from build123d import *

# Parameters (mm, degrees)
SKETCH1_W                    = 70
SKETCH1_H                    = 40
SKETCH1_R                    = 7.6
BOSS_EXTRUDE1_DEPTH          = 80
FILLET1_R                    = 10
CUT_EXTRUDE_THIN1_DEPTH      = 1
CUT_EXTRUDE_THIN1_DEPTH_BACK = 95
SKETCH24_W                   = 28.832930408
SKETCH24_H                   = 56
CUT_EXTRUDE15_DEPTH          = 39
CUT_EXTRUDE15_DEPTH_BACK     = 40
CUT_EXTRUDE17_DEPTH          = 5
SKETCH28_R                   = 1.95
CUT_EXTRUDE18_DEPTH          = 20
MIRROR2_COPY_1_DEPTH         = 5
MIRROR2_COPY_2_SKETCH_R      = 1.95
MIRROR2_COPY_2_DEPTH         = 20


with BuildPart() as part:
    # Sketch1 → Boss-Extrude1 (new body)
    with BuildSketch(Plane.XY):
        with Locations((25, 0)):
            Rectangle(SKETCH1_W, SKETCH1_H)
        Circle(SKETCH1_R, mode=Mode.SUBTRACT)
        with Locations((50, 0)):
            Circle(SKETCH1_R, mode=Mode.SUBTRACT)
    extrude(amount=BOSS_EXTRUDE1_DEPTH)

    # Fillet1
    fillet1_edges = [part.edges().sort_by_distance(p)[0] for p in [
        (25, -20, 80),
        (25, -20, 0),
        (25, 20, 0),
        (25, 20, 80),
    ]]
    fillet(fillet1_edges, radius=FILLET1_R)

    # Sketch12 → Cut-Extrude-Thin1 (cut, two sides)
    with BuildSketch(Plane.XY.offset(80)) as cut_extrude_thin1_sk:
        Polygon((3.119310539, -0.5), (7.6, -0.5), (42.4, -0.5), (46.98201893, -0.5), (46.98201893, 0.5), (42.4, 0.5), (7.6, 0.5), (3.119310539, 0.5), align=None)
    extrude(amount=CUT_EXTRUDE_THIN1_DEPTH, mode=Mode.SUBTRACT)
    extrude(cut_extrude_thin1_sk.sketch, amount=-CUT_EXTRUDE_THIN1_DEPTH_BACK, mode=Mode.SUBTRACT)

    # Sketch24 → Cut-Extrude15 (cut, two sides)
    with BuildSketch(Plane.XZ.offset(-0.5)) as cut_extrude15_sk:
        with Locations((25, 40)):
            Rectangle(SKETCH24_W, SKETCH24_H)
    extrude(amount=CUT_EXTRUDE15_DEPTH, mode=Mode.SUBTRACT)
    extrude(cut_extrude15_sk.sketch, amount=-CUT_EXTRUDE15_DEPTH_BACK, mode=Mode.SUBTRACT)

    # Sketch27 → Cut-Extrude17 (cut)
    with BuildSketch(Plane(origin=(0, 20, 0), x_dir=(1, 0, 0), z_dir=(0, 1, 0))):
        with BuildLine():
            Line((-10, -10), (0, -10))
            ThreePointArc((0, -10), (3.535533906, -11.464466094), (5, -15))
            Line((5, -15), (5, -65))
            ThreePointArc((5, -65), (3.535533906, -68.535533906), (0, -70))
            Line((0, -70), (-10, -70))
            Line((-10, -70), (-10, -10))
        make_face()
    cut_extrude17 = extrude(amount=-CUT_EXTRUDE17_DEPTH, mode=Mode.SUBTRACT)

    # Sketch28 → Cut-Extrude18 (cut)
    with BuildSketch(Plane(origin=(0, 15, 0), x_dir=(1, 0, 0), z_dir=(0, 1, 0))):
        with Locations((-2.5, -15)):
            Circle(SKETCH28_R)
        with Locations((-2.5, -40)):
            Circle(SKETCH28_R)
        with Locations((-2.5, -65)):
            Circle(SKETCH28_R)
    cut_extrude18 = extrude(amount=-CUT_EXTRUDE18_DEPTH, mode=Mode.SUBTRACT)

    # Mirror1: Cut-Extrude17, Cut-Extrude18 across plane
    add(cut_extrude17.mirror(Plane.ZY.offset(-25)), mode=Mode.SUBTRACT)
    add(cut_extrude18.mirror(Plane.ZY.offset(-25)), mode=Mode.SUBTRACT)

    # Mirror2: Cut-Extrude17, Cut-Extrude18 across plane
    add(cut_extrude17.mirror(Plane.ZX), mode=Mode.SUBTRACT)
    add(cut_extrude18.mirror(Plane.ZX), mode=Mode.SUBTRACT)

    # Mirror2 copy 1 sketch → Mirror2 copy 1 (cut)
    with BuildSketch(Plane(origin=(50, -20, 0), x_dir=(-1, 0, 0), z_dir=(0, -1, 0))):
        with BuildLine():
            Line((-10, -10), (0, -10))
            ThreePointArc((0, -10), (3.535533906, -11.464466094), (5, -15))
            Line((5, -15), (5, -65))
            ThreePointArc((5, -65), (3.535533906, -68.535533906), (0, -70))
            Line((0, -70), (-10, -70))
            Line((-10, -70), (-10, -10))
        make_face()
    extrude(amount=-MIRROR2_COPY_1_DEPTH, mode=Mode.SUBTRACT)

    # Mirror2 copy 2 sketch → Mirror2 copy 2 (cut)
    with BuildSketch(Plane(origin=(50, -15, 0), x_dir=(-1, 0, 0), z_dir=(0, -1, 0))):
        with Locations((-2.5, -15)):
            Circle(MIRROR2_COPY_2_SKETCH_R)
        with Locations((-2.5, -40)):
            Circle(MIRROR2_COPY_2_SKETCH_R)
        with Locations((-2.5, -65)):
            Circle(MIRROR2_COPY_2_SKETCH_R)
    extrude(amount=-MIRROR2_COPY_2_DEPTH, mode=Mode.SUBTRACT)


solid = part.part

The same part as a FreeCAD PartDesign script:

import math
import FreeCAD as App
import Part
import Sketcher
Q = App.Units.Quantity


def edges_at(feature, points):
    """Names of the edges that pass closest to the given points."""
    edges = feature.Shape.Edges
    near = lambda p: min(range(len(edges)), key=lambda i: edges[i].distToShape(Part.Vertex(*p))[0])
    return sorted({f"Edge{near(p) + 1}" for p in points})


def add_polygon(sketch, points):
    """Adds a closed chain of lines whose ends are joined by coincident constraints."""
    first, n = sketch.GeometryCount, len(points)
    for a, b in zip(points, points[1:] + points[:1]):
        sketch.addGeometry(Part.LineSegment(App.Vector(*a, 0), App.Vector(*b, 0)), False)
    for i in range(n):
        sketch.addConstraint(Sketcher.Constraint("Coincident", first + i, 2, first + (i + 1) % n, 1))

doc = App.newDocument("Part")
params = doc.addObject("Spreadsheet::Sheet", "Params")
for row, (alias, value) in enumerate([
    ("sketch1_diameter", "15.2 mm"),
    ("sketch1_width", "70 mm"),
    ("sketch1_height", "40 mm"),
    ("pad1_length", "80 mm"),
    ("fillet_radius", "10 mm"),
    ("sketch2_height", "1 mm"),
    ("sketch3_height", "56 mm"),
    ("sketch4_radius", "5 mm"),
    ("sketch4_width", "10 mm"),
    ("sketch4_height", "60 mm"),
    ("pocket3_length", "5 mm"),
    ("sketch5_diameter", "3.9 mm"),
    ("pocket4_length", "20 mm"),
    ("sketch6_radius", "5 mm"),
    ("sketch6_width", "10 mm"),
    ("sketch6_height", "60 mm"),
    ("pocket5_length", "5 mm"),
    ("sketch7_diameter", "3.9 mm"),
    ("pocket6_length", "20 mm"),
], start=1):
    params.set(f"A{row}", alias)
    params.set(f"B{row}", "=" + value)
    params.setAlias(f"B{row}", alias)

body = doc.addObject("PartDesign::Body", "Body")

# Sketch on XY plane
sketch1 = body.newObject("Sketcher::SketchObject", "Sketch")
sketch1.AttachmentSupport = (doc.getObject("XY_Plane"), [""])
sketch1.MapMode = "FlatFace"
add_polygon(sketch1, [(-10, 20), (-10, -20), (60, -20), (60, 20)])  # lines 0-3
sketch1.addGeometry(Part.Circle(App.Vector(0, 0, 0), App.Vector(0, 0, 1), 8), False)  # 4
sketch1.addGeometry(Part.Circle(App.Vector(50, 0, 0), App.Vector(0, 0, 1), 8), False)  # 5
sketch1.addConstraint([
    Sketcher.Constraint("Vertical", 0),
    Sketcher.Constraint("Horizontal", 1),
    Sketcher.Constraint("Vertical", 2),
    Sketcher.Constraint("Horizontal", 3),
    Sketcher.Constraint("Coincident", 4, 3, -1, 1),
    Sketcher.Constraint("Equal", 4, 5),
    Sketcher.Constraint("PointOnObject", 5, 3, -1),
    Sketcher.Constraint("Diameter", 4, Q("15.2 mm")),
    Sketcher.Constraint("DistanceX", 1, 1, 1, 2, Q("70 mm")),
    Sketcher.Constraint("DistanceY", 0, 2, 0, 1, Q("40 mm")),
    Sketcher.Constraint("DistanceX", -1, 1, 5, 3, Q("50 mm")),
    Sketcher.Constraint("DistanceX", 0, 2, -1, 1, Q("10 mm")),
    Sketcher.Constraint("DistanceY", 0, 2, -1, 1, Q("20 mm")),
])
sketch1.setExpression("Constraints[11]", "Params.sketch1_diameter")
sketch1.setExpression("Constraints[12]", "Params.sketch1_width")
sketch1.setExpression("Constraints[13]", "Params.sketch1_height")
pad1 = body.newObject("PartDesign::Pad", "Pad")
pad1.Profile = sketch1
pad1.setExpression("Length", "Params.pad1_length")
doc.recompute()

fillet = body.newObject("PartDesign::Fillet", "Fillet")
fillet.Base = (pad1, edges_at(pad1, [
    (25, -20, 80),
    (25, -20, 0),
    (25, 20, 0),
    (25, 20, 80),
]))
fillet.setExpression("Radius", "Params.fillet_radius")

# Sketch on XY plane
sketch2 = body.newObject("Sketcher::SketchObject", "Sketch001")
sketch2.AttachmentSupport = (doc.getObject("XY_Plane"), [""])
sketch2.MapMode = "FlatFace"
sketch2.AttachmentOffset = App.Placement(App.Vector(0, 0, 80), App.Rotation())
add_polygon(sketch2, [(3.1, -0.5), (47, -0.5), (47, 0.5), (3.1, 0.5)])  # lines 0-3
sketch2.addConstraint([
    Sketcher.Constraint("Horizontal", 0),
    Sketcher.Constraint("Vertical", 1),
    Sketcher.Constraint("Horizontal", 2),
    Sketcher.Constraint("Vertical", 3),
    Sketcher.Constraint("DistanceY", 1, 1, 1, 2, Q("1 mm")),
    Sketcher.Constraint("DistanceY", 0, 2, -1, 1, Q("0.5 mm")),
    Sketcher.Constraint("DistanceX", 0, 1, 0, 2, Q("43.862708 mm")),
    Sketcher.Constraint("DistanceX", -1, 1, 0, 2, Q("46.982019 mm")),
])
sketch2.setExpression("Constraints[8]", "Params.sketch2_height")
pocket1 = body.newObject("PartDesign::Pocket", "Pocket")
pocket1.Profile = sketch2
pocket1.Type = "ThroughAll"
pocket1.Midplane = True

# Sketch on XZ plane
sketch3 = body.newObject("Sketcher::SketchObject", "Sketch002")
sketch3.AttachmentSupport = (doc.getObject("XZ_Plane"), [""])
sketch3.MapMode = "FlatFace"
sketch3.AttachmentOffset = App.Placement(App.Vector(0, 0, -0.5), App.Rotation())
add_polygon(sketch3, [(11, 68), (11, 12), (39, 12), (39, 68)])  # lines 0-3
sketch3.addConstraint([
    Sketcher.Constraint("Vertical", 0),
    Sketcher.Constraint("Horizontal", 1),
    Sketcher.Constraint("Vertical", 2),
    Sketcher.Constraint("Horizontal", 3),
    Sketcher.Constraint("DistanceY", 0, 2, 0, 1, Q("56 mm")),
    Sketcher.Constraint("DistanceY", -1, 1, 0, 2, Q("12 mm")),
    Sketcher.Constraint("DistanceX", 1, 1, 1, 2, Q("28.83293 mm")),
    Sketcher.Constraint("DistanceX", -1, 1, 0, 2, Q("10.583535 mm")),
])
sketch3.setExpression("Constraints[8]", "Params.sketch3_height")
pocket2 = body.newObject("PartDesign::Pocket", "Pocket001")
pocket2.Profile = sketch3
pocket2.Type = "ThroughAll"
pocket2.Midplane = True

# Sketch on XZ plane
sketch4 = body.newObject("Sketcher::SketchObject", "Sketch003")
sketch4.AttachmentSupport = (doc.getObject("XZ_Plane"), [""])
sketch4.MapMode = "FlatFace"
sketch4.AttachmentOffset = App.Placement(App.Vector(0, 0, -20), App.Rotation())
sketch4.addGeometry([
    Part.LineSegment(App.Vector(0, 10, 0), App.Vector(-10, 10, 0)),  # 0
    Part.LineSegment(App.Vector(-10, 10, 0), App.Vector(-10, 70, 0)),  # 1
    Part.LineSegment(App.Vector(-10, 70, 0), App.Vector(0, 70, 0)),  # 2
    Part.ArcOfCircle(Part.Circle(App.Vector(0, 65, 0), App.Vector(0, 0, 1), 5), math.radians(0), math.radians(90)),  # 3
    Part.LineSegment(App.Vector(5, 65, 0), App.Vector(5, 15, 0)),  # 4
    Part.ArcOfCircle(Part.Circle(App.Vector(0, 15, 0), App.Vector(0, 0, 1), 5), math.radians(-90), math.radians(0)),  # 5
], False)
sketch4.addConstraint([
    Sketcher.Constraint("Coincident", 0, 2, 1, 1),
    Sketcher.Constraint("Coincident", 1, 2, 2, 1),
    Sketcher.Constraint("Tangent", 2, 2, 3, 2),
    Sketcher.Constraint("Tangent", 3, 1, 4, 1),
    Sketcher.Constraint("Tangent", 4, 2, 5, 2),
    Sketcher.Constraint("Tangent", 5, 1, 0, 1),
    Sketcher.Constraint("Horizontal", 0),
    Sketcher.Constraint("Vertical", 1),
    Sketcher.Constraint("Horizontal", 2),
    Sketcher.Constraint("Vertical", 4),
    Sketcher.Constraint("Equal", 3, 5),
    Sketcher.Constraint("PointOnObject", 3, 3, -2),
    Sketcher.Constraint("Radius", 3, Q("5 mm")),
    Sketcher.Constraint("DistanceX", 0, 2, 0, 1, Q("10 mm")),
    Sketcher.Constraint("DistanceY", 1, 1, 1, 2, Q("60 mm")),
    Sketcher.Constraint("DistanceY", -1, 1, 3, 3, Q("65 mm")),
])
sketch4.setExpression("Constraints[12]", "Params.sketch4_radius")
sketch4.setExpression("Constraints[13]", "Params.sketch4_width")
sketch4.setExpression("Constraints[14]", "Params.sketch4_height")
pocket3 = body.newObject("PartDesign::Pocket", "Pocket002")
pocket3.Profile = sketch4
pocket3.setExpression("Length", "Params.pocket3_length")
pocket3.Reversed = True

# Sketch on XZ plane
sketch5 = body.newObject("Sketcher::SketchObject", "Sketch004")
sketch5.AttachmentSupport = (doc.getObject("XZ_Plane"), [""])
sketch5.MapMode = "FlatFace"
sketch5.AttachmentOffset = App.Placement(App.Vector(0, 0, -15), App.Rotation())
sketch5.addGeometry([
    Part.Circle(App.Vector(-2.5, 15, 0), App.Vector(0, 0, 1), 1.9),
    Part.Circle(App.Vector(-2.5, 40, 0), App.Vector(0, 0, 1), 1.9),
    Part.Circle(App.Vector(-2.5, 65, 0), App.Vector(0, 0, 1), 1.9),
], False)
sketch5.addConstraint([
    Sketcher.Constraint("Equal", 0, 1),
    Sketcher.Constraint("Equal", 1, 2),
    Sketcher.Constraint("Vertical", 0, 3, 1, 3),
    Sketcher.Constraint("Vertical", 1, 3, 2, 3),
    Sketcher.Constraint("Diameter", 0, Q("3.9 mm")),
    Sketcher.Constraint("DistanceY", -1, 1, 0, 3, Q("15 mm")),
    Sketcher.Constraint("DistanceY", -1, 1, 1, 3, Q("40 mm")),
    Sketcher.Constraint("DistanceY", -1, 1, 2, 3, Q("65 mm")),
    Sketcher.Constraint("DistanceX", 0, 3, -1, 1, Q("2.5 mm")),
])
sketch5.setExpression("Constraints[4]", "Params.sketch5_diameter")
pocket4 = body.newObject("PartDesign::Pocket", "Pocket003")
pocket4.Profile = sketch5
pocket4.setExpression("Length", "Params.pocket4_length")
pocket4.Reversed = True
doc.recompute()

datumplane = body.newObject("PartDesign::Plane", "DatumPlane")
datumplane.AttachmentSupport = (doc.getObject("YZ_Plane"), [""])
datumplane.MapMode = "FlatFace"
datumplane.AttachmentOffset = App.Placement(App.Vector(0, 0, 25), App.Rotation())
mirrored = body.newObject("PartDesign::Mirrored", "Mirrored")
mirrored.Originals = [pocket3, pocket4]
mirrored.MirrorPlane = (datumplane, [""])
body.Tip = mirrored
doc.recompute()

mirrored2 = body.newObject("PartDesign::Mirrored", "Mirrored001")
mirrored2.Originals = [pocket3, pocket4]
mirrored2.MirrorPlane = (doc.getObject("XZ_Plane"), [""])
body.Tip = mirrored2

# Sketch on XZ plane
sketch6 = body.newObject("Sketcher::SketchObject", "Sketch005")
sketch6.AttachmentSupport = (doc.getObject("XZ_Plane"), [""])
sketch6.MapMode = "FlatFace"
sketch6.AttachmentOffset = App.Placement(App.Vector(0, 0, 20), App.Rotation())
sketch6.addGeometry([
    Part.LineSegment(App.Vector(50, 10, 0), App.Vector(60, 10, 0)),  # 0
    Part.LineSegment(App.Vector(60, 10, 0), App.Vector(60, 70, 0)),  # 1
    Part.LineSegment(App.Vector(60, 70, 0), App.Vector(50, 70, 0)),  # 2
    Part.ArcOfCircle(Part.Circle(App.Vector(50, 65, 0), App.Vector(0, 0, 1), 5), math.radians(90), math.radians(180)),  # 3
    Part.LineSegment(App.Vector(45, 65, 0), App.Vector(45, 15, 0)),  # 4
    Part.ArcOfCircle(Part.Circle(App.Vector(50, 15, 0), App.Vector(0, 0, 1), 5), math.radians(180), math.radians(270)),  # 5
], False)
sketch6.addConstraint([
    Sketcher.Constraint("Coincident", 0, 2, 1, 1),
    Sketcher.Constraint("Coincident", 1, 2, 2, 1),
    Sketcher.Constraint("Tangent", 2, 2, 3, 1),
    Sketcher.Constraint("Tangent", 3, 2, 4, 1),
    Sketcher.Constraint("Tangent", 4, 2, 5, 1),
    Sketcher.Constraint("Tangent", 5, 2, 0, 1),
    Sketcher.Constraint("Horizontal", 0),
    Sketcher.Constraint("Vertical", 1),
    Sketcher.Constraint("Horizontal", 2),
    Sketcher.Constraint("Vertical", 4),
    Sketcher.Constraint("Equal", 3, 5),
    Sketcher.Constraint("Radius", 3, Q("5 mm")),
    Sketcher.Constraint("DistanceX", 0, 1, 0, 2, Q("10 mm")),
    Sketcher.Constraint("DistanceY", 1, 1, 1, 2, Q("60 mm")),
    Sketcher.Constraint("DistanceX", -1, 1, 3, 3, Q("50 mm")),
    Sketcher.Constraint("DistanceY", -1, 1, 3, 3, Q("65 mm")),
])
sketch6.setExpression("Constraints[11]", "Params.sketch6_radius")
sketch6.setExpression("Constraints[12]", "Params.sketch6_width")
sketch6.setExpression("Constraints[13]", "Params.sketch6_height")
pocket5 = body.newObject("PartDesign::Pocket", "Pocket004")
pocket5.Profile = sketch6
pocket5.setExpression("Length", "Params.pocket5_length")

# Sketch on XZ plane
sketch7 = body.newObject("Sketcher::SketchObject", "Sketch006")
sketch7.AttachmentSupport = (doc.getObject("XZ_Plane"), [""])
sketch7.MapMode = "FlatFace"
sketch7.AttachmentOffset = App.Placement(App.Vector(0, 0, 15), App.Rotation())
sketch7.addGeometry([
    Part.Circle(App.Vector(52.5, 15, 0), App.Vector(0, 0, 1), 1.9),
    Part.Circle(App.Vector(52.5, 40, 0), App.Vector(0, 0, 1), 1.9),
    Part.Circle(App.Vector(52.5, 65, 0), App.Vector(0, 0, 1), 1.9),
], False)
sketch7.addConstraint([
    Sketcher.Constraint("Equal", 0, 1),
    Sketcher.Constraint("Equal", 1, 2),
    Sketcher.Constraint("Vertical", 0, 3, 1, 3),
    Sketcher.Constraint("Vertical", 1, 3, 2, 3),
    Sketcher.Constraint("Diameter", 0, Q("3.9 mm")),
    Sketcher.Constraint("DistanceY", -1, 1, 0, 3, Q("15 mm")),
    Sketcher.Constraint("DistanceY", -1, 1, 1, 3, Q("40 mm")),
    Sketcher.Constraint("DistanceY", -1, 1, 2, 3, Q("65 mm")),
    Sketcher.Constraint("DistanceX", -1, 1, 0, 3, Q("52.5 mm")),
])
sketch7.setExpression("Constraints[4]", "Params.sketch7_diameter")
pocket6 = body.newObject("PartDesign::Pocket", "Pocket005")
pocket6.Profile = sketch7
pocket6.setExpression("Length", "Params.pocket6_length")

doc.recompute()
